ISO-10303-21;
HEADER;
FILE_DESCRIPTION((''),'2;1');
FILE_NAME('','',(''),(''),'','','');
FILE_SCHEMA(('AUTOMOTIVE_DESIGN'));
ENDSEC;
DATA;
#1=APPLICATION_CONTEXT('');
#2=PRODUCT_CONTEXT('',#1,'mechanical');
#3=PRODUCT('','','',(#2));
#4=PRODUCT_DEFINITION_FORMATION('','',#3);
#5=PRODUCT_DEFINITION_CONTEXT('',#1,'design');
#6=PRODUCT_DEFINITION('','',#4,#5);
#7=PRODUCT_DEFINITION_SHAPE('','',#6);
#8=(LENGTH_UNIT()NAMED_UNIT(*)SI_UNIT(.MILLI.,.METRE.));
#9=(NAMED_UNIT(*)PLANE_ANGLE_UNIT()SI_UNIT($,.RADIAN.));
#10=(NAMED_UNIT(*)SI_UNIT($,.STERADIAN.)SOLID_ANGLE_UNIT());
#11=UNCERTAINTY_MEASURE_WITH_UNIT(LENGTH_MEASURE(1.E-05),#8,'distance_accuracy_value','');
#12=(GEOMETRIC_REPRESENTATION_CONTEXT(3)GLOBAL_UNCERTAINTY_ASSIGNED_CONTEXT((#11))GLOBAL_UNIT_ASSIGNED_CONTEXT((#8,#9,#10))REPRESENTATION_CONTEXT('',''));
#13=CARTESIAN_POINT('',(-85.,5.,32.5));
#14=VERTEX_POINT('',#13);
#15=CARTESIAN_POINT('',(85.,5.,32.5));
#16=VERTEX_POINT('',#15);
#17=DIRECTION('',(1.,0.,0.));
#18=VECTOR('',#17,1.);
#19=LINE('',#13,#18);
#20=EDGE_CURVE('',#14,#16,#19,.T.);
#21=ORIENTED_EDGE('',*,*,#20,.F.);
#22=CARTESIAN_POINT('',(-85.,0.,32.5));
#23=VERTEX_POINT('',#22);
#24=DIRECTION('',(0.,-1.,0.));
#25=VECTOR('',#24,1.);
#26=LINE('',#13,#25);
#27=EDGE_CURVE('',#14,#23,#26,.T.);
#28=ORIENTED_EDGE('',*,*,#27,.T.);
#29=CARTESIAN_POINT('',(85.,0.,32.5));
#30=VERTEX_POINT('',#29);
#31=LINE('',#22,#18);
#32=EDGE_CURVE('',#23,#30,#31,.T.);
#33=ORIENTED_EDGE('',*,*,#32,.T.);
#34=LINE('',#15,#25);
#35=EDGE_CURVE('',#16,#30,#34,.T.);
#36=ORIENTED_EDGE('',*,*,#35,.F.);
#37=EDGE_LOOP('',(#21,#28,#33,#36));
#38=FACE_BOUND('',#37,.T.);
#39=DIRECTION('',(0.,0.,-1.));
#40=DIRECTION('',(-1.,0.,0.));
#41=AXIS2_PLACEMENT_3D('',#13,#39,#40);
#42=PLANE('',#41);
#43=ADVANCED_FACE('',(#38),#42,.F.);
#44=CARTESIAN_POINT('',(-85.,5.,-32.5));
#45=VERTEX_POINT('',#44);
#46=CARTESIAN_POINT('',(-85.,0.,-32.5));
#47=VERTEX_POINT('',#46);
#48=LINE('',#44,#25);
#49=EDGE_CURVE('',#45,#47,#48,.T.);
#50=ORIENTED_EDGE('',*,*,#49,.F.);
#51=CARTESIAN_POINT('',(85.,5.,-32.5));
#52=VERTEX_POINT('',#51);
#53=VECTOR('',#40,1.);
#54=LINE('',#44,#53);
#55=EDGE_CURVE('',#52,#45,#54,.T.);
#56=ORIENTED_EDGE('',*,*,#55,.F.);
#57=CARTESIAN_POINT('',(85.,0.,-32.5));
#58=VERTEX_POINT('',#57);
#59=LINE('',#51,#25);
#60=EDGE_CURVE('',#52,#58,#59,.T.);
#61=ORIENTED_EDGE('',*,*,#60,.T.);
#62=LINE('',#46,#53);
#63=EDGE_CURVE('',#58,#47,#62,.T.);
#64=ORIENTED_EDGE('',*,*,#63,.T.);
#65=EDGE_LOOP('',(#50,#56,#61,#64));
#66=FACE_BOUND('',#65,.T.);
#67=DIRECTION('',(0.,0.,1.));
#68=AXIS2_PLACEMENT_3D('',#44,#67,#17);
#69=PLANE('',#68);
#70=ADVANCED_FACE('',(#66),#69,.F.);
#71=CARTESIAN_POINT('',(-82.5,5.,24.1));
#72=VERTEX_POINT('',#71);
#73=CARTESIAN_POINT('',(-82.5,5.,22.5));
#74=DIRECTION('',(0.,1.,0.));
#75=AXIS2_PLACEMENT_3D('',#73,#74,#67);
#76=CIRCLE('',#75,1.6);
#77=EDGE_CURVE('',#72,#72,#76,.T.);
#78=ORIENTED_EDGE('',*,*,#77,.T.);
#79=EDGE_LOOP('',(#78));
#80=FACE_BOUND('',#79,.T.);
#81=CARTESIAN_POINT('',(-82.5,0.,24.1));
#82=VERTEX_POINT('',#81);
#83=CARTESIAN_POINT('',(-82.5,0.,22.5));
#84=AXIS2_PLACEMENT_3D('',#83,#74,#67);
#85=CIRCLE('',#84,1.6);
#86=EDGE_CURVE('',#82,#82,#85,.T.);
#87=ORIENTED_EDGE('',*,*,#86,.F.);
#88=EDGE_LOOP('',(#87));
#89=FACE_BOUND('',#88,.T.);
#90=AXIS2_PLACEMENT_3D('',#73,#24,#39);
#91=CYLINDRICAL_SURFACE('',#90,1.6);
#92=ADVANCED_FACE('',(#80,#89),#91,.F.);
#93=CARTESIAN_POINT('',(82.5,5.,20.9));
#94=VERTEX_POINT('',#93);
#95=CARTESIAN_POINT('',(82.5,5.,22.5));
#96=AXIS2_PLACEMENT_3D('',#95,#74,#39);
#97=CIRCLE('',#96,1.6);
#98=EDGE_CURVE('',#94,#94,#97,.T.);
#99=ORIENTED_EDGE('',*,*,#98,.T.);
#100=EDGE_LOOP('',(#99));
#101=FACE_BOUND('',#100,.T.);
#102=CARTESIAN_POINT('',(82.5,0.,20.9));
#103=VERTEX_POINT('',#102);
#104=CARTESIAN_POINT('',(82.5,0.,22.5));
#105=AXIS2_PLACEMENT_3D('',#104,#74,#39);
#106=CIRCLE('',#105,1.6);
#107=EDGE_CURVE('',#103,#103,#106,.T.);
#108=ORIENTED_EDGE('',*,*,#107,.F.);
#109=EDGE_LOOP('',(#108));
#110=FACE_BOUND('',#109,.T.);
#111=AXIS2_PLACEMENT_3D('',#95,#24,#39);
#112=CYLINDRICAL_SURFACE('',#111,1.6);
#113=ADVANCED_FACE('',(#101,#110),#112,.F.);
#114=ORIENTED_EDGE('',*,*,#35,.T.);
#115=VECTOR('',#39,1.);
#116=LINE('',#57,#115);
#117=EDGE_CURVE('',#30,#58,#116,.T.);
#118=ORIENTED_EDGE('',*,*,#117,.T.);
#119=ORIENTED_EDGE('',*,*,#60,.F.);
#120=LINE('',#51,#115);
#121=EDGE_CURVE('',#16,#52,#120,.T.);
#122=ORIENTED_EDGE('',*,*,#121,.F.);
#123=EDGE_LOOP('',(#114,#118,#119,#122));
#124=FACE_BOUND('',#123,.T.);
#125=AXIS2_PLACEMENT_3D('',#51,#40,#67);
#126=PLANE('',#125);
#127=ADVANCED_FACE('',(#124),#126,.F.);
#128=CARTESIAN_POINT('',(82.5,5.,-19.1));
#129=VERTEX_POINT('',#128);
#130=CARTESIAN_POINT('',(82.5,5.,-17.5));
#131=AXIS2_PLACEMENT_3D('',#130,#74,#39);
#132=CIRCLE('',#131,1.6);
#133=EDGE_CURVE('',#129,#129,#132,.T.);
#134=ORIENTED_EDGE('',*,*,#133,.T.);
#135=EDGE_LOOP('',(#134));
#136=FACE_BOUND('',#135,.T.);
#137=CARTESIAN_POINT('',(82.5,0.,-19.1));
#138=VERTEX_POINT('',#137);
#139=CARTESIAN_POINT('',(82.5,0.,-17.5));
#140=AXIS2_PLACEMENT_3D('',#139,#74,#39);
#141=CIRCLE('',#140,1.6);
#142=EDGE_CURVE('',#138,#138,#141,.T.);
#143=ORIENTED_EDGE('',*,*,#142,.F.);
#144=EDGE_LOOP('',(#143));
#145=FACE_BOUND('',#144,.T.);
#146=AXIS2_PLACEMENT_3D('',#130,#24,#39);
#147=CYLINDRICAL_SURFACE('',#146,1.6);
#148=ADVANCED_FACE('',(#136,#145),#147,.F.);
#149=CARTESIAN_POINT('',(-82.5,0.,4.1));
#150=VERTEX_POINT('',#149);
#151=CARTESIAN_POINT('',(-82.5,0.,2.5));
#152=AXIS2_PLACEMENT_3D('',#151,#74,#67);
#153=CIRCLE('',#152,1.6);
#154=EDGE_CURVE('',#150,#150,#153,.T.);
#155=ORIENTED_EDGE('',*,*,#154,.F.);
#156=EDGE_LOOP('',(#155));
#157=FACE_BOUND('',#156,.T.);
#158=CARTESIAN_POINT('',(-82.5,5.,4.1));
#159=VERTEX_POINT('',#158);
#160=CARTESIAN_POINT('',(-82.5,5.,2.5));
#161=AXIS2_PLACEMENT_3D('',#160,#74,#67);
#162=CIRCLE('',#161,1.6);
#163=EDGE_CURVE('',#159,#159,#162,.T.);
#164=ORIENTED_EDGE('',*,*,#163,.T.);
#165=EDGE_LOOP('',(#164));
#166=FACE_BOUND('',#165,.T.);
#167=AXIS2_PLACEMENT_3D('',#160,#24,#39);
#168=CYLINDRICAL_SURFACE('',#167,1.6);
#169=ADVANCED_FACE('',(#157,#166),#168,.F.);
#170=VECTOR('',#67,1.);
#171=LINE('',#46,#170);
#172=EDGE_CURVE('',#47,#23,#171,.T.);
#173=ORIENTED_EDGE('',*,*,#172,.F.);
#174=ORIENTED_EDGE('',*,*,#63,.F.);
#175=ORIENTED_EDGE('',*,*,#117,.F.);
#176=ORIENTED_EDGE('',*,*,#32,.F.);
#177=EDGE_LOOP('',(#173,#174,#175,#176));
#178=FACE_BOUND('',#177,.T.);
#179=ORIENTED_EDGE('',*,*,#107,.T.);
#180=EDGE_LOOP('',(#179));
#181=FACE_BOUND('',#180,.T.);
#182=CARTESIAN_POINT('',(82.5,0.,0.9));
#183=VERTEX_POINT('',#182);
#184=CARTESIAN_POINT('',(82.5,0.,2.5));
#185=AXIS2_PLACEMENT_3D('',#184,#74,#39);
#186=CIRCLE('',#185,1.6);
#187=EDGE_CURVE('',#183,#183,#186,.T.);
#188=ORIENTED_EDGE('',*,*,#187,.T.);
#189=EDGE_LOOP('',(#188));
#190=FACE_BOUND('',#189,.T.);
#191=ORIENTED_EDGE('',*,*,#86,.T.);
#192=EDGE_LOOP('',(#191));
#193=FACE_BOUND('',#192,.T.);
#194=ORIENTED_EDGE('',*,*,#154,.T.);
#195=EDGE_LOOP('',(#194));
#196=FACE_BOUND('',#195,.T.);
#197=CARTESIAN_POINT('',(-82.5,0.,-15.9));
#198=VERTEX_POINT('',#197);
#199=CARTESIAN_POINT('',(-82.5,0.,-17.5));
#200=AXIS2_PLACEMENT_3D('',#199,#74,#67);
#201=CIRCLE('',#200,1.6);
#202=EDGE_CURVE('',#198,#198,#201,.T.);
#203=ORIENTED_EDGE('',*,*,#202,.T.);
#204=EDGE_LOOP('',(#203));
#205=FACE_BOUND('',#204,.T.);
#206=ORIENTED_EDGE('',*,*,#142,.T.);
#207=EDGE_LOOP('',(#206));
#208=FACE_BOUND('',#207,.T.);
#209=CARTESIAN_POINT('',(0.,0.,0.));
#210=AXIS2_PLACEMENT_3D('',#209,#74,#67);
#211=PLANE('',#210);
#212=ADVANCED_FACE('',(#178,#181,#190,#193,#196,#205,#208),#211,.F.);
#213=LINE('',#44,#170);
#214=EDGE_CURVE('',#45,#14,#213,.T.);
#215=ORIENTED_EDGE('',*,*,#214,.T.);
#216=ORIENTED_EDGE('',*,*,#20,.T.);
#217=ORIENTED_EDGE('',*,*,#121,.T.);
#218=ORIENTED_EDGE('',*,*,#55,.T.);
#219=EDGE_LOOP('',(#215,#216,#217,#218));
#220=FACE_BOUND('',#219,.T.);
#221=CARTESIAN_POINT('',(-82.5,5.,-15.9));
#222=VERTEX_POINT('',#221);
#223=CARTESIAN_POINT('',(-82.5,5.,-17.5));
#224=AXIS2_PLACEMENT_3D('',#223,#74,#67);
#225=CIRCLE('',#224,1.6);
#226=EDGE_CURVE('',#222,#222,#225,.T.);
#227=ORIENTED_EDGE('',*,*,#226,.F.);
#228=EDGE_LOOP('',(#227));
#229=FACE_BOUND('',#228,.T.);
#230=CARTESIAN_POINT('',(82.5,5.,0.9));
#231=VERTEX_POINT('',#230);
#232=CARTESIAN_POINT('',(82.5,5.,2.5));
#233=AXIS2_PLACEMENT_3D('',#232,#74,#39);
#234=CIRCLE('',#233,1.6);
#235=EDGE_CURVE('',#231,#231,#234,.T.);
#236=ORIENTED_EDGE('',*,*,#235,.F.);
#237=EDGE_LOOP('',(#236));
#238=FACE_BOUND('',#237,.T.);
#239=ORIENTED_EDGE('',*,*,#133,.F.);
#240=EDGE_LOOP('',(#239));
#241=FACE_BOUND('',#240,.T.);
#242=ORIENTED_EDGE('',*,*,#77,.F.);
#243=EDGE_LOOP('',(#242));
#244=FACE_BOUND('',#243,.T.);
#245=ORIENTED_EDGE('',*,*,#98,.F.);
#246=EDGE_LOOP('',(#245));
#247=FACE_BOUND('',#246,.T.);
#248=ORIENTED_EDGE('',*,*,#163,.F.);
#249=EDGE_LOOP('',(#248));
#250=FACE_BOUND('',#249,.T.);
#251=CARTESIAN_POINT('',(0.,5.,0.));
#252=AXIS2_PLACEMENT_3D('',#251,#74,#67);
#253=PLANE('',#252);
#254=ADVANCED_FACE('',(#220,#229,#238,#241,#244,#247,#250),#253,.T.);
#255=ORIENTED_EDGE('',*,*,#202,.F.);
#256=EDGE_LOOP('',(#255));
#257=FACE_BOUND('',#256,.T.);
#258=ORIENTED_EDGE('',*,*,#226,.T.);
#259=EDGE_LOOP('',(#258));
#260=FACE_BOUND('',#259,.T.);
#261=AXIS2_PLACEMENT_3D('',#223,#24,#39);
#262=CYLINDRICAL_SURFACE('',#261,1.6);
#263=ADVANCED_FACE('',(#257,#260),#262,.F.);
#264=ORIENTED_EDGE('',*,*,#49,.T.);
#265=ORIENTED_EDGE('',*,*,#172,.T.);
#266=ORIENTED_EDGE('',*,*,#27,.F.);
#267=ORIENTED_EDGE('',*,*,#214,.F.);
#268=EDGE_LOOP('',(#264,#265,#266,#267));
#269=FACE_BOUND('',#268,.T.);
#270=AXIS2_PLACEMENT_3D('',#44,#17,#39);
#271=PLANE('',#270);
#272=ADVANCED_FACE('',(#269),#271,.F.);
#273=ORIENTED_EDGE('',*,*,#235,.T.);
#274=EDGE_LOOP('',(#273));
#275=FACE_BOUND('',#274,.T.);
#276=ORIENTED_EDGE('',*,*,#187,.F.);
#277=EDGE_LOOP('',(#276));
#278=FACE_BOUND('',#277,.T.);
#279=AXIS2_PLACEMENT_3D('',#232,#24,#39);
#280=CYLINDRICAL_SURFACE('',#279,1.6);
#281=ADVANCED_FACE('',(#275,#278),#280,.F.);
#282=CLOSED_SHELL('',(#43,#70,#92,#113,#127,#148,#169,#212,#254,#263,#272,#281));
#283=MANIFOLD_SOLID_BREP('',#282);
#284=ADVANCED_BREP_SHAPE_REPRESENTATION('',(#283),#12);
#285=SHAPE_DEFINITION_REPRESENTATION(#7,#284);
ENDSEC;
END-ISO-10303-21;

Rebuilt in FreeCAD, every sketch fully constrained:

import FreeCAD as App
import Part
import Sketcher
from FreeCAD import Vector

doc = App.newDocument("Part")
params = doc.addObject("Spreadsheet::Sheet", "Params")
for row, (alias, value) in enumerate([
    ("sketch1_diameter", "3.2 mm"),
    ("sketch1_width", "170 mm"),
    ("sketch1_height", "65 mm"),
    ("pad1_length", "5 mm"),
], start=1):
    params.set(f"A{row}", alias)
    params.set(f"B{row}", "=" + value)
    params.setAlias(f"B{row}", alias)

body = doc.addObject("PartDesign::Body", "Body")

sketch1 = body.newObject("Sketcher::SketchObject", "Sketch")
sketch1.AttachmentSupport = (doc.getObject("XZ_Plane"), [""])
sketch1.MapMode = "FlatFace"
sketch1.addGeometry([
    Part.LineSegment(Vector(-85, -32.5, 0), Vector(-85, 32.5, 0)),
    Part.LineSegment(Vector(-85, 32.5, 0), Vector(85, 32.5, 0)),
    Part.LineSegment(Vector(85, 32.5, 0), Vector(85, -32.5, 0)),
    Part.LineSegment(Vector(85, -32.5, 0), Vector(-85, -32.5, 0)),
    Part.Circle(Vector(-82.5, 22.5, 0), Vector(0, 0, 1), 1.6),
    Part.Circle(Vector(82.5, 22.5, 0), Vector(0, 0, 1), 1.6),
    Part.Circle(Vector(-82.5, 2.5, 0), Vector(0, 0, 1), 1.6),
    Part.Circle(Vector(-82.5, -17.5, 0), Vector(0, 0, 1), 1.6),
    Part.Circle(Vector(82.5, 2.5, 0), Vector(0, 0, 1), 1.6),
    Part.Circle(Vector(82.5, -17.5, 0), Vector(0, 0, 1), 1.6),
], False)
sketch1.addConstraint([
    Sketcher.Constraint("Coincident", 0, 2, 1, 1),
    Sketcher.Constraint("Coincident", 1, 2, 2, 1),
    Sketcher.Constraint("Coincident", 2, 2, 3, 1),
    Sketcher.Constraint("Coincident", 3, 2, 0, 1),
    Sketcher.Constraint("Vertical", 0),
    Sketcher.Constraint("Horizontal", 1),
    Sketcher.Constraint("Vertical", 2),
    Sketcher.Constraint("Horizontal", 3),
    Sketcher.Constraint("Equal", 4, 5),
    Sketcher.Constraint("Equal", 5, 6),
    Sketcher.Constraint("Equal", 6, 7),
    Sketcher.Constraint("Equal", 7, 8),
    Sketcher.Constraint("Equal", 8, 9),
    Sketcher.Constraint("Symmetric", 0, 2, 2, 2, -1, 1),
    Sketcher.Constraint("Symmetric", 4, 3, 5, 3, -2),
    Sketcher.Constraint("Symmetric", 6, 3, 8, 3, -2),
    Sketcher.Constraint("Symmetric", 7, 3, 9, 3, -2),
    Sketcher.Constraint("Vertical", 4, 3, 6, 3),
    Sketcher.Constraint("Vertical", 6, 3, 7, 3),
    Sketcher.Constraint("Diameter", 4, 3.2),
    Sketcher.Constraint("DistanceX", 1, 1, 1, 2, 170.0),
    Sketcher.Constraint("DistanceY", 0, 1, 0, 2, 65.0),
    Sketcher.Constraint("DistanceX", 4, 3, 5, 3, 165.0),
    Sketcher.Constraint("DistanceY", 6, 3, 4, 3, 20.0),
    Sketcher.Constraint("DistanceY", 7, 3, 6, 3, 20.0),
    Sketcher.Constraint("DistanceY", 4, 3, 0, 2, 10.0),
])
sketch1.setExpression("Constraints[19]", "Params.sketch1_diameter")
sketch1.setExpression("Constraints[20]", "Params.sketch1_width")
sketch1.setExpression("Constraints[21]", "Params.sketch1_height")
pad1 = body.newObject("PartDesign::Pad", "Pad")
pad1.Profile = sketch1
pad1.setExpression("Length", "Params.pad1_length")
pad1.Reversed = True

doc.recompute()
